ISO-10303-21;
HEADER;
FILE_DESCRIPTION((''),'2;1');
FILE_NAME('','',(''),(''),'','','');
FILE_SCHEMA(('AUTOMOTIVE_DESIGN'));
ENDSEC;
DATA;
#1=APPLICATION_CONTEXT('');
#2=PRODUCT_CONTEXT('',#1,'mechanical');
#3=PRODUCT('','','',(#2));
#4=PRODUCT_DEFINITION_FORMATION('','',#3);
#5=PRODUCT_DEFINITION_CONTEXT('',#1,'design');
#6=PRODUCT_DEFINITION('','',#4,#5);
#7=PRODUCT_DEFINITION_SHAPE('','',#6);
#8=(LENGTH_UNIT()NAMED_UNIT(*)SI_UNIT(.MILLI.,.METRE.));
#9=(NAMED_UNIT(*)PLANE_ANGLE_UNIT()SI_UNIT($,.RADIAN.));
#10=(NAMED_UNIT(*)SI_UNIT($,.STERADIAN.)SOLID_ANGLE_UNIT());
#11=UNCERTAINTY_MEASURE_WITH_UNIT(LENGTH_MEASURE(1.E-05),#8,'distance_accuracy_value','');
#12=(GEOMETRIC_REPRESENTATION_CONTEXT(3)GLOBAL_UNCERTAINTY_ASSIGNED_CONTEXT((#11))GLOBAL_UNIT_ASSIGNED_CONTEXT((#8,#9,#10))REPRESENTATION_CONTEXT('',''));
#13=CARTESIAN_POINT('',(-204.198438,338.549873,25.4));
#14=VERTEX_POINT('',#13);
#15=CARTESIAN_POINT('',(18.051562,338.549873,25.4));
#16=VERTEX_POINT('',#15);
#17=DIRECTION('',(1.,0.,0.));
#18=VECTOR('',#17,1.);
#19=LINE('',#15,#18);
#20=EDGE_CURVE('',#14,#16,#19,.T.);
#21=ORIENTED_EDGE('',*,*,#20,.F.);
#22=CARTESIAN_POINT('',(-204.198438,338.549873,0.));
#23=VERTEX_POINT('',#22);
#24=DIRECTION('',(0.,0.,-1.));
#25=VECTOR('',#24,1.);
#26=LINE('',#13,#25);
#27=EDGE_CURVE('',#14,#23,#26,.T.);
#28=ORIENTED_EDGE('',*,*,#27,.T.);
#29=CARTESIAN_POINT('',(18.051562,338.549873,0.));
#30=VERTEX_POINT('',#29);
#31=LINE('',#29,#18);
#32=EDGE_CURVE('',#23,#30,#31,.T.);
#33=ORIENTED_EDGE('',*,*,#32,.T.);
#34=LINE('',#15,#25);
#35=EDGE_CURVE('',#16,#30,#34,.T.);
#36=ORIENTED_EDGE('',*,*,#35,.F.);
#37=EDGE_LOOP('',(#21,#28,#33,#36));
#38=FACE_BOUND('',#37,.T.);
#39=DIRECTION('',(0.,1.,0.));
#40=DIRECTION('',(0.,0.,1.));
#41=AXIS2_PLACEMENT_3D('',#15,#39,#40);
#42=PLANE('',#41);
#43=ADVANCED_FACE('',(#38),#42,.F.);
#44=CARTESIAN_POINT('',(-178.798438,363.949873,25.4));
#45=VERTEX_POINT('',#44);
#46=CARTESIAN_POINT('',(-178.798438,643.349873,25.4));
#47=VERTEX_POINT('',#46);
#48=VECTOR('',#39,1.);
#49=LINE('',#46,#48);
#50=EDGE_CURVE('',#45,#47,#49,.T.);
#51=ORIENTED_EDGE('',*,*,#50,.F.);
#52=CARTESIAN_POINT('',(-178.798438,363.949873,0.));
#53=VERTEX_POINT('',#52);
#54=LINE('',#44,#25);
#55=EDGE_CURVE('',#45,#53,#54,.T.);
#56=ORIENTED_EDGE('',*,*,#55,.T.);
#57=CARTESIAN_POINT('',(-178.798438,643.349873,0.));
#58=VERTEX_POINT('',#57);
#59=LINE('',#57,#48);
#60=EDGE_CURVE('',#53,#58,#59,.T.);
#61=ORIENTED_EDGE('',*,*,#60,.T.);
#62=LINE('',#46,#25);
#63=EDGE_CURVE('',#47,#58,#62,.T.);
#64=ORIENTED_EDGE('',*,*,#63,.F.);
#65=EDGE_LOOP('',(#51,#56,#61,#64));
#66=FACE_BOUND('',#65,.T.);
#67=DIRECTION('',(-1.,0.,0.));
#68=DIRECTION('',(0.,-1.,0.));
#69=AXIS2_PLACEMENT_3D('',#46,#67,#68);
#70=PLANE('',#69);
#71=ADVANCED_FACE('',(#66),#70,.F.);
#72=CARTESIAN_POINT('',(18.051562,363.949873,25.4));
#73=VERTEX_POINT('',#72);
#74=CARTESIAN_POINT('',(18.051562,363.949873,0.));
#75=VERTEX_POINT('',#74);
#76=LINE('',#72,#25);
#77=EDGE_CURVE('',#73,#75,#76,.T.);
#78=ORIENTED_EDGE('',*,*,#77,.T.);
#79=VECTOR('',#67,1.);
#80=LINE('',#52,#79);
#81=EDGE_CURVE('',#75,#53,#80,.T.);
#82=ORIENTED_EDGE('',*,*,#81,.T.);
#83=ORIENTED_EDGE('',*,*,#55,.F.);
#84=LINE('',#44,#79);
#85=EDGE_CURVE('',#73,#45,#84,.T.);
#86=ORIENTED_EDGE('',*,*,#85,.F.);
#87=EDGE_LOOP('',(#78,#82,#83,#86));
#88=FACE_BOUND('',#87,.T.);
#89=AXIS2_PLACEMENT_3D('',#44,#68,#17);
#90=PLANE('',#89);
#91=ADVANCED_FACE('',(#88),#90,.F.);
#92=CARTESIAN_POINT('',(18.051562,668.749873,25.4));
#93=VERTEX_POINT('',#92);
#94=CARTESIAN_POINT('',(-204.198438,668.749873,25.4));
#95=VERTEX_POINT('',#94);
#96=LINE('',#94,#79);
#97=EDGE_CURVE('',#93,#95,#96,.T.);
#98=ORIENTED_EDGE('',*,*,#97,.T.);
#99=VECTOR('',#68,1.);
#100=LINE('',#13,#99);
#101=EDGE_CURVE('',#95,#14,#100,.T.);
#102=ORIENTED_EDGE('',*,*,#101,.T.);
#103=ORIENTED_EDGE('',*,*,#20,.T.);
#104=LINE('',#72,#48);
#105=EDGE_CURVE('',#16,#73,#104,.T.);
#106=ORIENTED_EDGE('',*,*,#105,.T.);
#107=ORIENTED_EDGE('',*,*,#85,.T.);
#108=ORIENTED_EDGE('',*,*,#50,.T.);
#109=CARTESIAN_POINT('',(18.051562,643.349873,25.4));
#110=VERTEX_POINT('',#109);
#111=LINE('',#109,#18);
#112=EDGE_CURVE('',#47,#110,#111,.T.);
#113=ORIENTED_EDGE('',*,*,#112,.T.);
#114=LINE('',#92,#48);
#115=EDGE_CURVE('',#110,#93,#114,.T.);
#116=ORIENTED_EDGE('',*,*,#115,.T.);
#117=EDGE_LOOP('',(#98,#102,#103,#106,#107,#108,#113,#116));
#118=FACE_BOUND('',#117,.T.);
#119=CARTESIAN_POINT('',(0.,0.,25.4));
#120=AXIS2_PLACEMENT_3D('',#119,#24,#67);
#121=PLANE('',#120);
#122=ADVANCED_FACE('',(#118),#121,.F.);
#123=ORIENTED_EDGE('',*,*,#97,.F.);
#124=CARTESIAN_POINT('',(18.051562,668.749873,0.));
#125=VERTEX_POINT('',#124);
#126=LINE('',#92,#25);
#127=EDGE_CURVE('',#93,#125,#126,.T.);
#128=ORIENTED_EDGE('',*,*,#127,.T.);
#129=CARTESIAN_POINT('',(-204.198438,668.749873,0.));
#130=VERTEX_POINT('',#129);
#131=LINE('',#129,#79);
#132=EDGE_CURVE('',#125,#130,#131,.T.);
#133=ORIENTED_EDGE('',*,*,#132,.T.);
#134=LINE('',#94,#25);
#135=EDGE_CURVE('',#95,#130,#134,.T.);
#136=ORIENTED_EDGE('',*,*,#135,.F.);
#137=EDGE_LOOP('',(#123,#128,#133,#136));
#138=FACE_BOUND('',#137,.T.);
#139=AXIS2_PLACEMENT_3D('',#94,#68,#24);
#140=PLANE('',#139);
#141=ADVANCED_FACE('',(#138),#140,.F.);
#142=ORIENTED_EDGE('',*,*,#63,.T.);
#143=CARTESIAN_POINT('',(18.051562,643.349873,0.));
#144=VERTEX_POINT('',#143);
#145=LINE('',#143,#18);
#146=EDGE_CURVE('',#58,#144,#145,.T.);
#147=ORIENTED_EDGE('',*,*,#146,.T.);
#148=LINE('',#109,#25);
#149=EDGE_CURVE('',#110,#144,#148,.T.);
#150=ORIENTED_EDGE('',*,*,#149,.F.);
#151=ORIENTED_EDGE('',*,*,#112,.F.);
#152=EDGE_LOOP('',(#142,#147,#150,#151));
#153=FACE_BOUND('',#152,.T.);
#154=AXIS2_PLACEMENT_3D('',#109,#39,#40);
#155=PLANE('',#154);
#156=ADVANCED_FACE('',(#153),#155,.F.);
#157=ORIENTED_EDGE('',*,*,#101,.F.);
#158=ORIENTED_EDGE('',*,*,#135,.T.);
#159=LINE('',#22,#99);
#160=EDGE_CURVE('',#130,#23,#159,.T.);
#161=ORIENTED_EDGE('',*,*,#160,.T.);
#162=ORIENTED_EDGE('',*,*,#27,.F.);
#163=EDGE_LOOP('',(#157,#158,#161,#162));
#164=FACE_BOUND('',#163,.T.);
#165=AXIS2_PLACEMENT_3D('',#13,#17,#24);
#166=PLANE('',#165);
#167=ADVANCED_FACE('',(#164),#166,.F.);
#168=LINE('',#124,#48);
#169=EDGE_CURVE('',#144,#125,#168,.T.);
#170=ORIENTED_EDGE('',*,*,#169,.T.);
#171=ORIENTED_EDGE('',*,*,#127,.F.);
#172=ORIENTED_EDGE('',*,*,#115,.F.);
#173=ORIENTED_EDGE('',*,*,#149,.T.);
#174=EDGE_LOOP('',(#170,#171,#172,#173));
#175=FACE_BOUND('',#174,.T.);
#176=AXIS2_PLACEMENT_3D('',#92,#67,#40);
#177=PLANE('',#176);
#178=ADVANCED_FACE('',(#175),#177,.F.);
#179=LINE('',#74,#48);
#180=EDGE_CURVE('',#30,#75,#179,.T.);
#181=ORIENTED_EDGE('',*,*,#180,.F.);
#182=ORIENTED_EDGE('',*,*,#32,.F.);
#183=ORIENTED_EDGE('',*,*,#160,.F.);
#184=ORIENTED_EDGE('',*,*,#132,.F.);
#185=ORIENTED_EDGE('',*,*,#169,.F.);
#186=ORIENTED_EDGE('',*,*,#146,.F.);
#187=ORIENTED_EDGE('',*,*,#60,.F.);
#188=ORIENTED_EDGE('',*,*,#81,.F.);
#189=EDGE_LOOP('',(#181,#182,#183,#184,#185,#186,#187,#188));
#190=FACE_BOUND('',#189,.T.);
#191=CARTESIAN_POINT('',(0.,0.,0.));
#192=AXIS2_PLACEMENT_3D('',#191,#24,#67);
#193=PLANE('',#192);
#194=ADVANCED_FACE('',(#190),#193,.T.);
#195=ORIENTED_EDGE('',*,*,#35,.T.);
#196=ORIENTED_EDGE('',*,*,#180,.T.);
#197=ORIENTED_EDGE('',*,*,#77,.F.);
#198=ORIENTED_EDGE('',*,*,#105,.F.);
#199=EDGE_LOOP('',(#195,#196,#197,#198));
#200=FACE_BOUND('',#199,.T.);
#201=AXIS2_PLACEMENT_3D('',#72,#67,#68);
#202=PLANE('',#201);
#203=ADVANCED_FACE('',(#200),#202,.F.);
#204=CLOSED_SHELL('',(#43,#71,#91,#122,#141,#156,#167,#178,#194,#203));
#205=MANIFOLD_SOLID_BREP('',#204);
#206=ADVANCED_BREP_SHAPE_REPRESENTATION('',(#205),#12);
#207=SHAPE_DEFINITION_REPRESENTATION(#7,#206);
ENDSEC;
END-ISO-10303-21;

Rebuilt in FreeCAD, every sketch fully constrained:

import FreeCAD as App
import Part
import Sketcher

V = App.Vector
Q = App.Units.Quantity

doc = App.newDocument("Part")
params = doc.addObject("Spreadsheet::Sheet", "Params")
for row, (alias, value) in enumerate([
    ("sketch1_height", "1 in"),
    ("sketch1_height2", "11 in"),
    ("sketch1_width", "8.75 in"),
    ("pad1_length", "1 in"),
], start=1):
    params.set(f"A{row}", alias)
    params.set(f"B{row}", "=" + value)
    params.setAlias(f"B{row}", alias)

body = doc.addObject("PartDesign::Body", "Body")

# Sketch on XY plane
sketch1 = body.newObject("Sketcher::SketchObject", "Sketch")
sketch1.AttachmentSupport = (doc.getObject("XY_Plane"), [""])
sketch1.MapMode = "FlatFace"
sketch1.addGeometry([
    Part.LineSegment(V(-204.198438, 338.549873, 0), V(18.051562, 338.549873, 0)),  # 0
    Part.LineSegment(V(18.051562, 338.549873, 0), V(18.051562, 363.949873, 0)),  # 1
    Part.LineSegment(V(18.051562, 363.949873, 0), V(-178.798438, 363.949873, 0)),  # 2
    Part.LineSegment(V(-178.798438, 363.949873, 0), V(-178.798438, 643.349873, 0)),  # 3
    Part.LineSegment(V(-178.798438, 643.349873, 0), V(18.051562, 643.349873, 0)),  # 4
    Part.LineSegment(V(18.051562, 643.349873, 0), V(18.051562, 668.749873, 0)),  # 5
    Part.LineSegment(V(18.051562, 668.749873, 0), V(-204.198438, 668.749873, 0)),  # 6
    Part.LineSegment(V(-204.198438, 668.749873, 0), V(-204.198438, 338.549873, 0)),  # 7
], False)
sketch1.addConstraint([
    Sketcher.Constraint("Coincident", 0, 2, 1, 1),
    Sketcher.Constraint("Coincident", 1, 2, 2, 1),
    Sketcher.Constraint("Coincident", 2, 2, 3, 1),
    Sketcher.Constraint("Coincident", 3, 2, 4, 1),
    Sketcher.Constraint("Coincident", 4, 2, 5, 1),
    Sketcher.Constraint("Coincident", 5, 2, 6, 1),
    Sketcher.Constraint("Coincident", 6, 2, 7, 1),
    Sketcher.Constraint("Coincident", 7, 2, 0, 1),
    Sketcher.Constraint("Horizontal", 0),
    Sketcher.Constraint("Vertical", 1),
    Sketcher.Constraint("Horizontal", 2),
    Sketcher.Constraint("Vertical", 3),
    Sketcher.Constraint("Horizontal", 4),
    Sketcher.Constraint("Vertical", 5),
    Sketcher.Constraint("Horizontal", 6),
    Sketcher.Constraint("Vertical", 7),
    Sketcher.Constraint("Vertical", 1, 2, 4, 2),
    Sketcher.Constraint("Equal", 1, 5),
    Sketcher.Constraint("DistanceY", 1, 1, 1, 2, Q("1 in")),
    Sketcher.Constraint("DistanceY", 3, 1, 3, 2, Q("11 in")),
    Sketcher.Constraint("DistanceX", 6, 2, 3, 2, Q("1 in")),
    Sketcher.Constraint("DistanceX", 0, 1, 0, 2, Q("8.75 in")),
    Sketcher.Constraint("DistanceX", -1, 1, 0, 2, Q("18.051562 mm")),
    Sketcher.Constraint("DistanceY", -1, 1, 0, 2, Q("338.549873 mm")),
])
sketch1.setExpression("Constraints[18]", "Params.sketch1_height")
sketch1.setExpression("Constraints[19]", "Params.sketch1_height2")
sketch1.setExpression("Constraints[21]", "Params.sketch1_width")
pad1 = body.newObject("PartDesign::Pad", "Pad")
pad1.Profile = sketch1
pad1.setExpression("Length", "Params.pad1_length")

doc.recompute()
